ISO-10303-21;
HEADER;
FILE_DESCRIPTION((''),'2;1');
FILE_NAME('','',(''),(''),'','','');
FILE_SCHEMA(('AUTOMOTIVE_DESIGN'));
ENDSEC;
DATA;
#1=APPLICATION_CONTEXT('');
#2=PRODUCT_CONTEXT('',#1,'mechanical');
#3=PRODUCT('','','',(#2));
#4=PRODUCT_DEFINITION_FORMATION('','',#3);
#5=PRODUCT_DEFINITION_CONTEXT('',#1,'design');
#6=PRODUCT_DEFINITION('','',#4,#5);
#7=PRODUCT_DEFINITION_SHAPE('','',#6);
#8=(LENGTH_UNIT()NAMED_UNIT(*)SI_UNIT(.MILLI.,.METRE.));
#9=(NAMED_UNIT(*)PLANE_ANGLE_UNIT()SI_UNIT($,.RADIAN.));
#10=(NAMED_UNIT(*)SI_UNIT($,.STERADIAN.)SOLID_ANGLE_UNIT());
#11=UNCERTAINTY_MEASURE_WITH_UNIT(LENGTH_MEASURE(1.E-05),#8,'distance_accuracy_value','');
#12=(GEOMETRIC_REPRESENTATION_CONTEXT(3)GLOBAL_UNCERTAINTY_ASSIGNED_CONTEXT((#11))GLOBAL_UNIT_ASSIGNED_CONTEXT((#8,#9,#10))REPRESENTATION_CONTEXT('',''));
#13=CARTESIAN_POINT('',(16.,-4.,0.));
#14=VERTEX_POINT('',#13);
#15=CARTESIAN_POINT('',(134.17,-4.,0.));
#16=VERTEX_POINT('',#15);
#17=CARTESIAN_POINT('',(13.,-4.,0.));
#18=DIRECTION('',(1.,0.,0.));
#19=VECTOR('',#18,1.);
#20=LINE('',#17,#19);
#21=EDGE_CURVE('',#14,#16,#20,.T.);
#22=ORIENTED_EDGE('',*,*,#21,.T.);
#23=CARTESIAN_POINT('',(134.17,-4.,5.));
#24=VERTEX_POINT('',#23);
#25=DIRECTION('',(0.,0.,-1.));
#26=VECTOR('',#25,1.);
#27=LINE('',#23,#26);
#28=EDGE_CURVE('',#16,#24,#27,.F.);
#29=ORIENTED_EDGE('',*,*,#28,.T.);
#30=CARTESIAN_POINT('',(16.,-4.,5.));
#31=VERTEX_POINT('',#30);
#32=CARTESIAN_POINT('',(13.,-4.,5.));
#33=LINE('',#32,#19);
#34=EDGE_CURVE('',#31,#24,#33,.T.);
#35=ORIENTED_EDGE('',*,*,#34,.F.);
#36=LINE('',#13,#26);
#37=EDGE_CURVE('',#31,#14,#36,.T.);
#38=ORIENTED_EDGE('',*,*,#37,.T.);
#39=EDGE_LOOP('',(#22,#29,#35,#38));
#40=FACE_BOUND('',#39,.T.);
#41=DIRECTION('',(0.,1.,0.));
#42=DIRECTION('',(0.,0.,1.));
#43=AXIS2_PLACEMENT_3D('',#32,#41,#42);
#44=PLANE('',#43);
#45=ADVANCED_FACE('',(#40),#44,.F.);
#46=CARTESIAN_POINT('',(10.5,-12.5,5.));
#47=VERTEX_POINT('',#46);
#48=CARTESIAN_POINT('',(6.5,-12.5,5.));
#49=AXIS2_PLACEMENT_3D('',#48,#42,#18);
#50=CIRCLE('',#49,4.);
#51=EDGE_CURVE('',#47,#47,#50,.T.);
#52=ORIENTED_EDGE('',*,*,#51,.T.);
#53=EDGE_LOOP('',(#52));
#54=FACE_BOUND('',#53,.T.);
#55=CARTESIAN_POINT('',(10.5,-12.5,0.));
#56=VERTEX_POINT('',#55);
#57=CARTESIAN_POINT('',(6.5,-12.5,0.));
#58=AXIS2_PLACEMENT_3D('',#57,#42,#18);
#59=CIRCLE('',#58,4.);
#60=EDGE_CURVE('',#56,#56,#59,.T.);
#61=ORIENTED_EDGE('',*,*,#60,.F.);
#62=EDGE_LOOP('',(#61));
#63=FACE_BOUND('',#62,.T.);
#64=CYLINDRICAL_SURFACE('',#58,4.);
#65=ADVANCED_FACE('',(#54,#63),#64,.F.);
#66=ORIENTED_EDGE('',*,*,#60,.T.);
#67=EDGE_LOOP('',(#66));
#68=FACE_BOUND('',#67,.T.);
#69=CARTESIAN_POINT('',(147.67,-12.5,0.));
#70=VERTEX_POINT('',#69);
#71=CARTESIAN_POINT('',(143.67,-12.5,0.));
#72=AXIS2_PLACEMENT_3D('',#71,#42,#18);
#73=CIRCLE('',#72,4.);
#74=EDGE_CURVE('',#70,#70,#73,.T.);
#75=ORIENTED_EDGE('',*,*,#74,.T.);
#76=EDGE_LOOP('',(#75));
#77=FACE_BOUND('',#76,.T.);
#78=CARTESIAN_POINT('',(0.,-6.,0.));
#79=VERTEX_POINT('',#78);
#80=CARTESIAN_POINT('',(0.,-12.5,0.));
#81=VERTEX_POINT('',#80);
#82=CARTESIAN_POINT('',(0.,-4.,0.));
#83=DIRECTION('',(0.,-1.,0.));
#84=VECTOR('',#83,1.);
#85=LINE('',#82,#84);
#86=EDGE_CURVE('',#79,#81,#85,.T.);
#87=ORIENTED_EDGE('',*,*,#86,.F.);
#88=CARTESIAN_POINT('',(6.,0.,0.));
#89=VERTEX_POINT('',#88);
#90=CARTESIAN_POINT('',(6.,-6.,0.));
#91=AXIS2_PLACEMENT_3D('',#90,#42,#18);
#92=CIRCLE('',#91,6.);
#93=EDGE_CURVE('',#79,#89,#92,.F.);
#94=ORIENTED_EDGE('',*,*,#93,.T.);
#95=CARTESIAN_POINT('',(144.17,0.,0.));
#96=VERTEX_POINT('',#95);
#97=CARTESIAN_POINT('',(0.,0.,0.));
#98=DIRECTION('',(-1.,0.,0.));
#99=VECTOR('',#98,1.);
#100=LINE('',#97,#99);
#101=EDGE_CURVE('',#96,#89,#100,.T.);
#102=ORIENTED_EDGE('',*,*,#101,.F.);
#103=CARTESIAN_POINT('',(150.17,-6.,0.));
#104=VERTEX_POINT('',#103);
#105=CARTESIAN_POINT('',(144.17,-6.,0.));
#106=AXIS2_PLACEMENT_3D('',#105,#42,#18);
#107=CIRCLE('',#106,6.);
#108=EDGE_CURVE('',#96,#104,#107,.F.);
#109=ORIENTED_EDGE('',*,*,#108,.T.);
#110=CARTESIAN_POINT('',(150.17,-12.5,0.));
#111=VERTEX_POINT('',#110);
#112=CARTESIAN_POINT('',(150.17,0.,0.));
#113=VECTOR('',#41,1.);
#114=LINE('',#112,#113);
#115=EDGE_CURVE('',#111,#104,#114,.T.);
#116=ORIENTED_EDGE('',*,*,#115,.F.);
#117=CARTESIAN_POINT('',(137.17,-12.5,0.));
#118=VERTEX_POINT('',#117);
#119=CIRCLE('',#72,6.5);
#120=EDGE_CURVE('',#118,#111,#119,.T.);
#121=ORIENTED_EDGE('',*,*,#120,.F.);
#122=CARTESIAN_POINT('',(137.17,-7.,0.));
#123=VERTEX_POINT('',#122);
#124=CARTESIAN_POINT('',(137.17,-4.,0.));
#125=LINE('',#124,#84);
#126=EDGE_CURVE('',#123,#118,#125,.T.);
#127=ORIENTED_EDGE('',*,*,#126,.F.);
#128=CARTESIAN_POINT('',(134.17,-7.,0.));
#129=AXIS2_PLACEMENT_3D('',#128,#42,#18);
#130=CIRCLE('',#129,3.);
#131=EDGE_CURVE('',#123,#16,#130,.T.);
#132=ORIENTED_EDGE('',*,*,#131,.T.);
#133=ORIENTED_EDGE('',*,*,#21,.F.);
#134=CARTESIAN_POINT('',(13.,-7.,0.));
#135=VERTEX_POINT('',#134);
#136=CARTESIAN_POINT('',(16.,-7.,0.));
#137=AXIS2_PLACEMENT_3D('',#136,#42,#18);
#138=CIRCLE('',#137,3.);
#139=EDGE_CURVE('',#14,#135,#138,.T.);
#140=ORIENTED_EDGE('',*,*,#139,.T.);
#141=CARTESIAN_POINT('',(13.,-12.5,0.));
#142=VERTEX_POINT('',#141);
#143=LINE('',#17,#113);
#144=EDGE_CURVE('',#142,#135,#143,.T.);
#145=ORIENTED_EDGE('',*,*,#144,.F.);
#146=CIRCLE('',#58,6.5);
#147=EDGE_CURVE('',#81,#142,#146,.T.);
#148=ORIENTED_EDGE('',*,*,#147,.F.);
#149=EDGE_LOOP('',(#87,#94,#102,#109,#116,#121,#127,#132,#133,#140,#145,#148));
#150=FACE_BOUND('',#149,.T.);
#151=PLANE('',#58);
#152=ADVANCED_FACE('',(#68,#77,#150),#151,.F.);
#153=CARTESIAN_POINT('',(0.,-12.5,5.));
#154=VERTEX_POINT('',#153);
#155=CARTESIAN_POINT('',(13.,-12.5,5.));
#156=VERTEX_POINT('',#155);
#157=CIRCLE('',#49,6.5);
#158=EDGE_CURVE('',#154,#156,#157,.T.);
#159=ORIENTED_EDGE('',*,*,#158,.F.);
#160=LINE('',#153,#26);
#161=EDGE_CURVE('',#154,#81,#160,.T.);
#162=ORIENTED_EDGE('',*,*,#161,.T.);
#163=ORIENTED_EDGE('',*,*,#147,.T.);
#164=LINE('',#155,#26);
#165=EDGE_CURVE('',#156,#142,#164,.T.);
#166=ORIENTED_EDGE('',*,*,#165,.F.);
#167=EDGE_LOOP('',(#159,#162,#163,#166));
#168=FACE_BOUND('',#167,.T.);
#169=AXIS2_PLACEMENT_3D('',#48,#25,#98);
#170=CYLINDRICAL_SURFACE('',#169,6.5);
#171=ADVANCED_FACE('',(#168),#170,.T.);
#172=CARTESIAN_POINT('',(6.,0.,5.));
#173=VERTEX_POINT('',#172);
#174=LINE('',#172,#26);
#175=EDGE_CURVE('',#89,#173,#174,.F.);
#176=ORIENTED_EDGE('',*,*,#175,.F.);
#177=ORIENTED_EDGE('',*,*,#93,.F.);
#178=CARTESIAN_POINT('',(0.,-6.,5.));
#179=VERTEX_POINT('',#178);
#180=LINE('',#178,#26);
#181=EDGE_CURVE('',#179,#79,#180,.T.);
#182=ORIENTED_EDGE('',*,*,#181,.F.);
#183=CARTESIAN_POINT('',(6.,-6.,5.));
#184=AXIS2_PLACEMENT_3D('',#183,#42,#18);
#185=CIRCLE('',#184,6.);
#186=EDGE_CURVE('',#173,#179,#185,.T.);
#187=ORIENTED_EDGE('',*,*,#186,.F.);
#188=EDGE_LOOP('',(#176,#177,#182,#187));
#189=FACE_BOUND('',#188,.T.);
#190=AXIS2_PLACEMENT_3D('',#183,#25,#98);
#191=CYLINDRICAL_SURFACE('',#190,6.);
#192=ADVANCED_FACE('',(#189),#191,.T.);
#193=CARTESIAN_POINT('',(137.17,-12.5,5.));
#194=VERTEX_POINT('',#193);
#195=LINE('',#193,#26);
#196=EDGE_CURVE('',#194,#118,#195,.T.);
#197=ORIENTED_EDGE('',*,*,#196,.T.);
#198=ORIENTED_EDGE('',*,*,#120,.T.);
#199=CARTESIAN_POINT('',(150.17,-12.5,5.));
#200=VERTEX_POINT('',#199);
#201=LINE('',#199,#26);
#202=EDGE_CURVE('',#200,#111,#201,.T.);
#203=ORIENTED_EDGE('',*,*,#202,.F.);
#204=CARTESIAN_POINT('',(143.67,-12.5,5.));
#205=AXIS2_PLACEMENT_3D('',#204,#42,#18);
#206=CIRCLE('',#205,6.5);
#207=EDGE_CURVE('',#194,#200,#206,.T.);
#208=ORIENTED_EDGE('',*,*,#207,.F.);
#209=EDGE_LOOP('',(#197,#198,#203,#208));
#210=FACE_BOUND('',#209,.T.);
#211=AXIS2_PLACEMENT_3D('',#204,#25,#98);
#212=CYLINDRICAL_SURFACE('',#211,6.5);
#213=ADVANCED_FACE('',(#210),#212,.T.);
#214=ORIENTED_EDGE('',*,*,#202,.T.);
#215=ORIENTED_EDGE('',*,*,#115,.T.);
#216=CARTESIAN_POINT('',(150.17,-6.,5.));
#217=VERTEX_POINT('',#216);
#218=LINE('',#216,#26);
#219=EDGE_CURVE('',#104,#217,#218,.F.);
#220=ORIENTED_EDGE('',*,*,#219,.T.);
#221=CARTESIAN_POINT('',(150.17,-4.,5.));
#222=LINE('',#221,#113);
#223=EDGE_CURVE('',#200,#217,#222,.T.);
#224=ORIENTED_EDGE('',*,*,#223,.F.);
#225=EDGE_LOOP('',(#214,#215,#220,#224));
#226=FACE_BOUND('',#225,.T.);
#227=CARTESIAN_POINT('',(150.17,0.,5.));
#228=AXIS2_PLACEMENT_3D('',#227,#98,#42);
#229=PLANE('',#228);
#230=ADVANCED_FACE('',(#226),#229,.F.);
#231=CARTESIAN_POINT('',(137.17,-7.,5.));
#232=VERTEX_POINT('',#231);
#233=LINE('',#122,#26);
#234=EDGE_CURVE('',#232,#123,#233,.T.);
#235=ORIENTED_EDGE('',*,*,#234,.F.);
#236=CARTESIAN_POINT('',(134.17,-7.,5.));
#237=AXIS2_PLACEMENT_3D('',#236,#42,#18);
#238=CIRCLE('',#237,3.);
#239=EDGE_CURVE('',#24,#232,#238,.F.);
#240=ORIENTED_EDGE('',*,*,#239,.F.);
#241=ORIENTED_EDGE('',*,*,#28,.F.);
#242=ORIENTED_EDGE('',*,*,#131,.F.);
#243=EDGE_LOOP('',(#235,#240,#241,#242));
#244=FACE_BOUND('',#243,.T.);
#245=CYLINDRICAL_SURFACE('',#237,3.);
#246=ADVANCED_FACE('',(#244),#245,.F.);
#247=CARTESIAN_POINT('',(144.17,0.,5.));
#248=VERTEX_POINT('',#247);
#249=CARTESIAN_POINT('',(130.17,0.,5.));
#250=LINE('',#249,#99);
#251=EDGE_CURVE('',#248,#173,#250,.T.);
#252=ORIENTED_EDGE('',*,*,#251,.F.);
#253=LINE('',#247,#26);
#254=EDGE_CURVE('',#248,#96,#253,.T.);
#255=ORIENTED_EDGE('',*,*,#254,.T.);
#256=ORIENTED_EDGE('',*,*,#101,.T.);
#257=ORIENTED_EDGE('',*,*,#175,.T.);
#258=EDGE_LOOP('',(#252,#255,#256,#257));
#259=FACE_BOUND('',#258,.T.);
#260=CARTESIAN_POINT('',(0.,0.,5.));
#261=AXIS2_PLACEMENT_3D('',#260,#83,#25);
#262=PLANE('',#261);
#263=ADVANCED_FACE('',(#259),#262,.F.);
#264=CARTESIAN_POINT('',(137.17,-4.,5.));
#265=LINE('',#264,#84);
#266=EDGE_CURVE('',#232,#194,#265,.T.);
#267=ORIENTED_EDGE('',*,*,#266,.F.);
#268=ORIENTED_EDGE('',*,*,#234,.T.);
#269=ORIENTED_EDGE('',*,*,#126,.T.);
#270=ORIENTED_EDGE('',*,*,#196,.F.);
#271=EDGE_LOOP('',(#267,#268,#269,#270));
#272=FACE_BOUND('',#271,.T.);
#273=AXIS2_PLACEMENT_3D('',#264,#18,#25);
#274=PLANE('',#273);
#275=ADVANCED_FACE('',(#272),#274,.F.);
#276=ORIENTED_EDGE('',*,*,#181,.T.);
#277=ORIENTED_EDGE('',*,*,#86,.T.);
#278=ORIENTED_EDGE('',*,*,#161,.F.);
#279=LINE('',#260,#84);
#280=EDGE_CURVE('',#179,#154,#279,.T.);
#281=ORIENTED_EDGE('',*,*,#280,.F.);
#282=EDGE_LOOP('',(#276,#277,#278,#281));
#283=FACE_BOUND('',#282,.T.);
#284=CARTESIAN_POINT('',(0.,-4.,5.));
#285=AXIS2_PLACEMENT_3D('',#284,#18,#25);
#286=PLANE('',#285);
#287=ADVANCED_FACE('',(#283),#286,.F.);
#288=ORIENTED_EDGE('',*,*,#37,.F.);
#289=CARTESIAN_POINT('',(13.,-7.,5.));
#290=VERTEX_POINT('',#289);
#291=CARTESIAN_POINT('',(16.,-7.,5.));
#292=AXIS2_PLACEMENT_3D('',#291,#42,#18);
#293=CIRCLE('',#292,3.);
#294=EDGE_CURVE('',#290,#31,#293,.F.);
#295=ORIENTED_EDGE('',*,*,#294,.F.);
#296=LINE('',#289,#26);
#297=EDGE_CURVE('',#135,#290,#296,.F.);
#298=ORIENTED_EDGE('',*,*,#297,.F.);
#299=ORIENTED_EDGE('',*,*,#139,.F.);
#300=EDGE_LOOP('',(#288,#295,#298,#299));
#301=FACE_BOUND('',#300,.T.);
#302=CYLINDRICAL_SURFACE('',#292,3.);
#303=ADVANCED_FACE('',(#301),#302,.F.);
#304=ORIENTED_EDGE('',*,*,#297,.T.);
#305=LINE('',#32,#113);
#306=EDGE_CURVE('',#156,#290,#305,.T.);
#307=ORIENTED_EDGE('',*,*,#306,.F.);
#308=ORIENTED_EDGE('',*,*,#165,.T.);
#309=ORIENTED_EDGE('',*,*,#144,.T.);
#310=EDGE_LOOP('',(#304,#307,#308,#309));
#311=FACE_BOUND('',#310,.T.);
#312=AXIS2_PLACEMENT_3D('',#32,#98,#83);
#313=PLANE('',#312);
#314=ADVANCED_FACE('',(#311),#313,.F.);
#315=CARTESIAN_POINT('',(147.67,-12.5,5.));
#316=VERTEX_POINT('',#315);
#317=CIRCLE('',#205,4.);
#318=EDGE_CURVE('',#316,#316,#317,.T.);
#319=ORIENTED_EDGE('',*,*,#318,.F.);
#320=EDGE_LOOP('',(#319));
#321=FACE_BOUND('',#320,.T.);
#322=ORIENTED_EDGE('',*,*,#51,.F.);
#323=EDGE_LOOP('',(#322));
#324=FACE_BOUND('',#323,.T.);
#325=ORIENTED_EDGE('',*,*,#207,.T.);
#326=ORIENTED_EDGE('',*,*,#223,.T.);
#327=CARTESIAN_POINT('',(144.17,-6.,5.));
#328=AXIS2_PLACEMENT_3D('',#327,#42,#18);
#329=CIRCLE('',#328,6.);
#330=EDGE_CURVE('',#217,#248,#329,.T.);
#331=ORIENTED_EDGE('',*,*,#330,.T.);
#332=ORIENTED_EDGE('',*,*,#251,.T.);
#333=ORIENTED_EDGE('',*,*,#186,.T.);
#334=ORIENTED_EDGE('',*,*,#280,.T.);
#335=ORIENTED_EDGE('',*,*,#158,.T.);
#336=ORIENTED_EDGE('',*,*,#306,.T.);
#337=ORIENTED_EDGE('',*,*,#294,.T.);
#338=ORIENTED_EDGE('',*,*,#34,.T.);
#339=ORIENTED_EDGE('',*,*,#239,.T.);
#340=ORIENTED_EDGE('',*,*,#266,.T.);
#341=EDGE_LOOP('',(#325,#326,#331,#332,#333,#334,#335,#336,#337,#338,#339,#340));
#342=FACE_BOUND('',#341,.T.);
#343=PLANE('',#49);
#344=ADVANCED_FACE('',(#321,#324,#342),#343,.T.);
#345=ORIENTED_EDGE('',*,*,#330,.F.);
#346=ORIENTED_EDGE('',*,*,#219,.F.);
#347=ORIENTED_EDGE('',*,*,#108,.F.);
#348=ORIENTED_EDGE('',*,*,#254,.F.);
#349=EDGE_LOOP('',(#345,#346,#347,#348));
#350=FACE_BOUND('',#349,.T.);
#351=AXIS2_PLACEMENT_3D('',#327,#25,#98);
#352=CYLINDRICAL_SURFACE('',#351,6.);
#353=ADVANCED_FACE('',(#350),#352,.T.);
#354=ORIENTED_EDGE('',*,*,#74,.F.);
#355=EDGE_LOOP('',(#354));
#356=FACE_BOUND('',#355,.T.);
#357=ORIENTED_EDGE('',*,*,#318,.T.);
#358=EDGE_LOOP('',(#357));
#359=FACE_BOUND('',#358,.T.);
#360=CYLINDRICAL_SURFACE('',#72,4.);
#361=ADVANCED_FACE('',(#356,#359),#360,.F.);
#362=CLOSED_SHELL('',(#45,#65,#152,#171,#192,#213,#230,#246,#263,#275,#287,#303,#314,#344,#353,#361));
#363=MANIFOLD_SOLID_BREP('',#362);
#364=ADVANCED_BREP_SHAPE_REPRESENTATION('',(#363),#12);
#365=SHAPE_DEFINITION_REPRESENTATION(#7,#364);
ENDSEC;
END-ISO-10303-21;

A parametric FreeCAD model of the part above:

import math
import FreeCAD as App
import Part
import Sketcher
from FreeCAD import Vector


def edges_at(feature, points):
    """Names of the edges that pass closest to the given points."""
    edges = feature.Shape.Edges
    near = lambda p: min(range(len(edges)), key=lambda i: edges[i].distToShape(Part.Vertex(*p))[0])
    return sorted({f"Edge{near(p) + 1}" for p in points})

doc = App.newDocument("Part")
body = doc.addObject("PartDesign::Body", "Body")

sketch1 = body.newObject("Sketcher::SketchObject", "Sketch")
sketch1.AttachmentSupport = (doc.getObject("XY_Plane"), [""])
sketch1.MapMode = "FlatFace"
sketch1.addGeometry(Part.LineSegment(Vector(150.17, 0, 0), Vector(0, 0, 0)), False)
sketch1.addGeometry(Part.LineSegment(Vector(0, 0, 0), Vector(0, -12.5, 0)), False)
sketch1.addGeometry(Part.ArcOfCircle(Part.Circle(Vector(6.5, -12.5, 0), Vector(0, 0, 1), 6.5), math.radians(180), math.radians(360)), False)
sketch1.addGeometry(Part.LineSegment(Vector(13, -12.5, 0), Vector(13, -4, 0)), False)
sketch1.addGeometry(Part.LineSegment(Vector(13, -4, 0), Vector(137.17, -4, 0)), False)
sketch1.addGeometry(Part.LineSegment(Vector(137.17, -4, 0), Vector(137.17, -12.5, 0)), False)
sketch1.addGeometry(Part.ArcOfCircle(Part.Circle(Vector(143.67, -12.5, 0), Vector(0, 0, 1), 6.5), math.radians(180), math.radians(360)), False)
sketch1.addGeometry(Part.LineSegment(Vector(150.17, -12.5, 0), Vector(150.17, 0, 0)), False)
sketch1.addConstraint(Sketcher.Constraint("Coincident", 0, 2, 1, 1))
sketch1.addConstraint(Sketcher.Constraint("Tangent", 1, 2, 2, 1))
sketch1.addConstraint(Sketcher.Constraint("Tangent", 2, 2, 3, 1))
sketch1.addConstraint(Sketcher.Constraint("Coincident", 3, 2, 4, 1))
sketch1.addConstraint(Sketcher.Constraint("Coincident", 4, 2, 5, 1))
sketch1.addConstraint(Sketcher.Constraint("Tangent", 5, 2, 6, 1))
sketch1.addConstraint(Sketcher.Constraint("Tangent", 6, 2, 7, 1))
sketch1.addConstraint(Sketcher.Constraint("Coincident", 7, 2, 0, 1))
sketch1.addConstraint(Sketcher.Constraint("Horizontal", 0))
sketch1.addConstraint(Sketcher.Constraint("Vertical", 1))
sketch1.addConstraint(Sketcher.Constraint("Vertical", 3))
sketch1.addConstraint(Sketcher.Constraint("Horizontal", 4))
sketch1.addConstraint(Sketcher.Constraint("Vertical", 5))
sketch1.addConstraint(Sketcher.Constraint("Vertical", 7))
sketch1.addConstraint(Sketcher.Constraint("Coincident", 0, 2, -1, 1))
sketch1.addConstraint(Sketcher.Constraint("Equal", 2, 6))
sketch1.addConstraint(Sketcher.Constraint("Horizontal", 2, 3, 6, 3))
sketch1.addConstraint(Sketcher.Constraint("Radius", 2, 6.5))
sketch1.addConstraint(Sketcher.Constraint("DistanceY", 1, 2, 1, 1, 12.5))
sketch1.addConstraint(Sketcher.Constraint("DistanceY", 3, 1, 3, 2, 8.5))
sketch1.addConstraint(Sketcher.Constraint("DistanceX", 0, 2, 0, 1, 150.17))
pad1 = body.newObject("PartDesign::Pad", "Pad")
pad1.Profile = sketch1
pad1.Length = 5

sketch2 = body.newObject("Sketcher::SketchObject", "Sketch001")
sketch2.AttachmentSupport = (doc.getObject("XY_Plane"), [""])
sketch2.MapMode = "FlatFace"
sketch2.AttachmentOffset = App.Placement(Vector(0, 0, 5), App.Rotation())
sketch2.addGeometry(Part.Circle(Vector(6.5, -12.5, 0), Vector(0, 0, 1), 4), False)
sketch2.addGeometry(Part.Circle(Vector(143.67, -12.5, 0), Vector(0, 0, 1), 4), False)
sketch2.addConstraint(Sketcher.Constraint("Equal", 0, 1))
sketch2.addConstraint(Sketcher.Constraint("Horizontal", 0, 3, 1, 3))
sketch2.addConstraint(Sketcher.Constraint("Diameter", 0, 8.0))
sketch2.addConstraint(Sketcher.Constraint("DistanceX", -1, 1, 0, 3, 6.5))
sketch2.addConstraint(Sketcher.Constraint("DistanceY", 0, 3, -1, 1, 12.5))
sketch2.addConstraint(Sketcher.Constraint("DistanceX", -1, 1, 1, 3, 143.67))
pocket1 = body.newObject("PartDesign::Pocket", "Pocket")
pocket1.Profile = sketch2
pocket1.Type = "ThroughAll"
doc.recompute()

fillet = body.newObject("PartDesign::Fillet", "Fillet")
fillet.Base = (pocket1, edges_at(pocket1, [(0, 0, 2.5), (150.17, 0, 2.5)]))
fillet.Radius = 6
doc.recompute()

fillet2 = body.newObject("PartDesign::Fillet", "Fillet001")
fillet2.Base = (fillet, edges_at(fillet, [(137.17, -4, 2.5), (13, -4, 2.5)]))
fillet2.Radius = 3

doc.recompute()
